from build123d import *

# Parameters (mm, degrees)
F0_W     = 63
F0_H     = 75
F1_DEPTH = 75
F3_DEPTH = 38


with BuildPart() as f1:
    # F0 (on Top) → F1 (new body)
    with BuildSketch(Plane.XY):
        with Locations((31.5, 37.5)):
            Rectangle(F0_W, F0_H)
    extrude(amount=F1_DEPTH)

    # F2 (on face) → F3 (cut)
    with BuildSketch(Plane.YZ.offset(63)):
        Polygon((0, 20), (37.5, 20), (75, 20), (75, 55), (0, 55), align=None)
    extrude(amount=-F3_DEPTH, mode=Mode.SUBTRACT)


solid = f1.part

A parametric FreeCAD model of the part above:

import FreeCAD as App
import Part
import Sketcher

doc = App.newDocument("Part")
body = doc.addObject("PartDesign::Body", "Body")

# Sketch on XY plane
sketch1 = body.newObject("Sketcher::SketchObject", "Sketch")
sketch1.AttachmentSupport = (doc.getObject("XY_Plane"), [""])
sketch1.MapMode = "FlatFace"
sketch1.addGeometry([
    Part.LineSegment(App.Vector(0, 75, 0), App.Vector(0, 0, 0)),
    Part.LineSegment(App.Vector(0, 0, 0), App.Vector(63, 0, 0)),
    Part.LineSegment(App.Vector(63, 0, 0), App.Vector(63, 75, 0)),
    Part.LineSegment(App.Vector(63, 75, 0), App.Vector(0, 75, 0)),
], False)
sketch1.addConstraint([
    Sketcher.Constraint("Coincident", 0, 2, 1, 1),
    Sketcher.Constraint("Coincident", 1, 2, 2, 1),
    Sketcher.Constraint("Coincident", 2, 2, 3, 1),
    Sketcher.Constraint("Coincident", 3, 2, 0, 1),
    Sketcher.Constraint("Vertical", 0),
    Sketcher.Constraint("Horizontal", 1),
    Sketcher.Constraint("Vertical", 2),
    Sketcher.Constraint("Horizontal", 3),
    Sketcher.Constraint("Coincident", 0, 2, -1, 1),
    Sketcher.Constraint("DistanceX", 1, 1, 1, 2, 63.0),
    Sketcher.Constraint("DistanceY", 0, 2, 0, 1, 75.0),
])
pad1 = body.newObject("PartDesign::Pad", "Pad")
pad1.Profile = sketch1
pad1.Length = 75

# Sketch on YZ plane
sketch2 = body.newObject("Sketcher::SketchObject", "Sketch001")
sketch2.AttachmentSupport = (doc.getObject("YZ_Plane"), [""])
sketch2.MapMode = "FlatFace"
sketch2.AttachmentOffset = App.Placement(App.Vector(0, 0, 63), App.Rotation())
sketch2.addGeometry([
    Part.LineSegment(App.Vector(0, 20, 0), App.Vector(75, 20, 0)),
    Part.LineSegment(App.Vector(75, 20, 0), App.Vector(75, 55, 0)),
    Part.LineSegment(App.Vector(75, 55, 0), App.Vector(0, 55, 0)),
    Part.LineSegment(App.Vector(0, 55, 0), App.Vector(0, 20, 0)),
], False)
sketch2.addConstraint([
    Sketcher.Constraint("Coincident", 0, 2, 1, 1),
    Sketcher.Constraint("Coincident", 1, 2, 2, 1),
    Sketcher.Constraint("Coincident", 2, 2, 3, 1),
    Sketcher.Constraint("Coincident", 3, 2, 0, 1),
    Sketcher.Constraint("Horizontal", 0),
    Sketcher.Constraint("Vertical", 1),
    Sketcher.Constraint("Horizontal", 2),
    Sketcher.Constraint("Vertical", 3),
    Sketcher.Constraint("PointOnObject", 2, 2, -2),
    Sketcher.Constraint("DistanceX", 0, 1, 0, 2, 75.0),
    Sketcher.Constraint("DistanceY", 1, 1, 1, 2, 35.0),
    Sketcher.Constraint("DistanceY", -1, 1, 0, 2, 20.0),
])
pocket1 = body.newObject("PartDesign::Pocket", "Pocket")
pocket1.Profile = sketch2
pocket1.Length = 38

doc.recompute()
